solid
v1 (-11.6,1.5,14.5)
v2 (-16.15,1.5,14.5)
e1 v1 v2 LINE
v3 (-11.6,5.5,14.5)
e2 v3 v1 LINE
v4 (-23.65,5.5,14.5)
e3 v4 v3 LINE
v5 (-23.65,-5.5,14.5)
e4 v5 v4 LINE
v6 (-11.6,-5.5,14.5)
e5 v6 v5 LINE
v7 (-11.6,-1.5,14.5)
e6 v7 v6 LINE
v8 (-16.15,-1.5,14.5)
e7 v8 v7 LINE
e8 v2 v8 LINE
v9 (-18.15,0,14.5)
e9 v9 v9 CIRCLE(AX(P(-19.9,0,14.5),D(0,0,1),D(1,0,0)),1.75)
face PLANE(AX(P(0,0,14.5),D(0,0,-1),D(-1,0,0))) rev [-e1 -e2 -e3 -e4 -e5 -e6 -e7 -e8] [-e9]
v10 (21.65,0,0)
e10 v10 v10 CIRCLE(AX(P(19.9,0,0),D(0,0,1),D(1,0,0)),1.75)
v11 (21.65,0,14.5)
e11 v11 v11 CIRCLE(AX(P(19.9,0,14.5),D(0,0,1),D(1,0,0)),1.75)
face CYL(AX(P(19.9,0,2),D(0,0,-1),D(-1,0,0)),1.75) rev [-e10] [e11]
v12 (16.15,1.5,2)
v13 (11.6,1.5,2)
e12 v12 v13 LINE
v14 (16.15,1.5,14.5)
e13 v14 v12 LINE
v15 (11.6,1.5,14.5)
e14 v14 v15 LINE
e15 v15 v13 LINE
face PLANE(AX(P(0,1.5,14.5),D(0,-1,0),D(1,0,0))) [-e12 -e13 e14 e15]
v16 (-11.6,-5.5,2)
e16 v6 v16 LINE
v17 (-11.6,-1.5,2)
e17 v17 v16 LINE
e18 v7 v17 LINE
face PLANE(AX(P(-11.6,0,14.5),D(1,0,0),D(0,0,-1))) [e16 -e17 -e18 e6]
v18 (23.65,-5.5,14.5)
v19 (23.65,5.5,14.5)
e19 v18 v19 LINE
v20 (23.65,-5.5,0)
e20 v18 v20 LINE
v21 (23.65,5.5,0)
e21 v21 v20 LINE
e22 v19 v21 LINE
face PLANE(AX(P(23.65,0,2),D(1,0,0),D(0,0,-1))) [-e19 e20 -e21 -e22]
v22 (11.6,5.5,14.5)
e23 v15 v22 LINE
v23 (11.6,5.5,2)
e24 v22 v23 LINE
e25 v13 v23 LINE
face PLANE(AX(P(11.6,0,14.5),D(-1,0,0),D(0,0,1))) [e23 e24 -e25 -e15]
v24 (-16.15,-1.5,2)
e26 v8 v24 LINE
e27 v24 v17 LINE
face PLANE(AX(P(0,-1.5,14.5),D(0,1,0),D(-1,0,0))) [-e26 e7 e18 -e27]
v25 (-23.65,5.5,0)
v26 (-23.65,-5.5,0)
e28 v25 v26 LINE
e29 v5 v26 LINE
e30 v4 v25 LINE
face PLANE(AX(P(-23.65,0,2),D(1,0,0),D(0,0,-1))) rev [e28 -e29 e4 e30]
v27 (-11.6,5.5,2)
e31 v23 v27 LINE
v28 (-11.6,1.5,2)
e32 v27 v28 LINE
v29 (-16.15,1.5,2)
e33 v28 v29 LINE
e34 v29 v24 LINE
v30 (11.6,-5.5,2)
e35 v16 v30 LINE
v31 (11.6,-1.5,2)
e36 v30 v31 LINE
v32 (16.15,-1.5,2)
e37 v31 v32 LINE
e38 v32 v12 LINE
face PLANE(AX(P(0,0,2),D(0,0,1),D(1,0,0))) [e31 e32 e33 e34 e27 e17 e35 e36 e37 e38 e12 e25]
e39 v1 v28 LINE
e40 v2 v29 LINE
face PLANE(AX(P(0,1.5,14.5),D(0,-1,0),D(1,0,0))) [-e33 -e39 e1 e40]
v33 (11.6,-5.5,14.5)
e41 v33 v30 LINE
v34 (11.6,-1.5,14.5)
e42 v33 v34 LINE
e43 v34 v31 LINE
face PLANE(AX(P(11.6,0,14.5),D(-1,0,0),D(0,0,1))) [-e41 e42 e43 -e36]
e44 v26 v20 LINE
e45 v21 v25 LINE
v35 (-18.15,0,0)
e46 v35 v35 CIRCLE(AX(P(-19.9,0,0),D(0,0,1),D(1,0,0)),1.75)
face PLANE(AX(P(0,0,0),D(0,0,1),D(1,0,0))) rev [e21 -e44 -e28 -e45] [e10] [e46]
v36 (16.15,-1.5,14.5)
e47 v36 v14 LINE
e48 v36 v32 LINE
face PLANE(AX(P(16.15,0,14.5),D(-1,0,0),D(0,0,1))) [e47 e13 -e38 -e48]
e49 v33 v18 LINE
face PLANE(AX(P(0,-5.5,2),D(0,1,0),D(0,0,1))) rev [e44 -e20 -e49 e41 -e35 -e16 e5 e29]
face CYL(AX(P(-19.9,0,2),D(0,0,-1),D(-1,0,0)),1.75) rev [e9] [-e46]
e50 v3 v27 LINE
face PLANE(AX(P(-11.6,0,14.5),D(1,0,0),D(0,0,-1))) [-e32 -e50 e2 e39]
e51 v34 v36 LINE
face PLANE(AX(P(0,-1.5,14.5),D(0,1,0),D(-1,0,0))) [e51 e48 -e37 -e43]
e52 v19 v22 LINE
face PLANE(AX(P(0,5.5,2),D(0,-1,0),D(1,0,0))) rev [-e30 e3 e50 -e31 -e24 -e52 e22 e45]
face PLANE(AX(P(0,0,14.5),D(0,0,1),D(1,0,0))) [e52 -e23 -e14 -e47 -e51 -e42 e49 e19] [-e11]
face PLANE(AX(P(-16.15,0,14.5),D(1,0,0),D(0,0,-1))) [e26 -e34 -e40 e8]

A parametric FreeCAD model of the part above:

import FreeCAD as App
import Part
import Sketcher

V = App.Vector
Q = App.Units.Quantity

doc = App.newDocument("Part")
params = doc.addObject("Spreadsheet::Sheet", "Params")
for row, (alias, value) in enumerate([
    ("sketch1_diameter", "3.5 mm"),
    ("sketch1_height", "11 mm"),
    ("sketch1_width", "47.3 mm"),
    ("pad1_length", "2 mm"),
    ("sketch2_diameter", "3.5 mm"),
    ("sketch2_height", "11 mm"),
    ("sketch2_height2", "4 mm"),
    ("sketch2_width", "12.05 mm"),
    ("sketch2_width2", "4.55 mm"),
    ("pad2_length", "12.5 mm"),
], start=1):
    params.set(f"A{row}", alias)
    params.set(f"B{row}", "=" + value)
    params.setAlias(f"B{row}", alias)

body = doc.addObject("PartDesign::Body", "Body")

sketch1 = body.newObject("Sketcher::SketchObject", "Sketch")
sketch1.AttachmentSupport = (doc.getObject("XY_Plane"), [""])
sketch1.MapMode = "FlatFace"
sketch1.addGeometry([
    Part.LineSegment(V(-23.65, 5.5, 0), V(-23.65, -5.5, 0)),
    Part.LineSegment(V(-23.65, -5.5, 0), V(23.65, -5.5, 0)),
    Part.LineSegment(V(23.65, -5.5, 0), V(23.65, 5.5, 0)),
    Part.LineSegment(V(23.65, 5.5, 0), V(-23.65, 5.5, 0)),
    Part.Circle(V(-19.9, 0, 0), V(0, 0, 1), 1.75),
    Part.Circle(V(19.9, 0, 0), V(0, 0, 1), 1.75),
], False)
sketch1.addConstraint([
    Sketcher.Constraint("Coincident", 0, 2, 1, 1),
    Sketcher.Constraint("Coincident", 1, 2, 2, 1),
    Sketcher.Constraint("Coincident", 2, 2, 3, 1),
    Sketcher.Constraint("Coincident", 3, 2, 0, 1),
    Sketcher.Constraint("Vertical", 0),
    Sketcher.Constraint("Horizontal", 1),
    Sketcher.Constraint("Vertical", 2),
    Sketcher.Constraint("Horizontal", 3),
    Sketcher.Constraint("Equal", 4, 5),
    Sketcher.Constraint("Symmetric", 4, 3, 5, 3, -1, 1),
    Sketcher.Constraint("Symmetric", 0, 2, 2, 2, -1, 1),
    Sketcher.Constraint("PointOnObject", 4, 3, -1),
    Sketcher.Constraint("Diameter", 4, Q("3.5 mm")),
    Sketcher.Constraint("DistanceY", 0, 2, 0, 1, Q("11 mm")),
    Sketcher.Constraint("DistanceX", 1, 1, 1, 2, Q("47.3 mm")),
    Sketcher.Constraint("DistanceX", 4, 3, -1, 1, Q("19.9 mm")),
])
sketch1.setExpression("Constraints[12]", "Params.sketch1_diameter")
sketch1.setExpression("Constraints[13]", "Params.sketch1_height")
sketch1.setExpression("Constraints[14]", "Params.sketch1_width")
pad1 = body.newObject("PartDesign::Pad", "Pad")
pad1.Profile = sketch1
pad1.setExpression("Length", "Params.pad1_length")

sketch2 = body.newObject("Sketcher::SketchObject", "Sketch001")
sketch2.AttachmentSupport = (doc.getObject("XY_Plane"), [""])
sketch2.MapMode = "FlatFace"
sketch2.AttachmentOffset = App.Placement(V(0, 0, 2), App.Rotation())
sketch2.addGeometry([
    Part.LineSegment(V(-23.65, 5.5, 0), V(-23.65, -5.5, 0)),
    Part.LineSegment(V(-23.65, -5.5, 0), V(-11.6, -5.5, 0)),
    Part.LineSegment(V(-11.6, -5.5, 0), V(-11.6, -1.5, 0)),
    Part.LineSegment(V(-11.6, -1.5, 0), V(-16.15, -1.5, 0)),
    Part.LineSegment(V(-16.15, -1.5, 0), V(-16.15, 1.5, 0)),
    Part.LineSegment(V(-16.15, 1.5, 0), V(-11.6, 1.5, 0)),
    Part.LineSegment(V(-11.6, 1.5, 0), V(-11.6, 5.5, 0)),
    Part.LineSegment(V(-11.6, 5.5, 0), V(-23.65, 5.5, 0)),
    Part.Circle(V(-19.9, 0, 0), V(0, 0, 1), 1.75),
    Part.LineSegment(V(11.6, -5.5, 0), V(23.65, -5.5, 0)),
    Part.LineSegment(V(23.65, -5.5, 0), V(23.65, 5.5, 0)),
    Part.LineSegment(V(23.65, 5.5, 0), V(11.6, 5.5, 0)),
    Part.LineSegment(V(11.6, 5.5, 0), V(11.6, 1.5, 0)),
    Part.LineSegment(V(11.6, 1.5, 0), V(16.15, 1.5, 0)),
    Part.LineSegment(V(16.15, 1.5, 0), V(16.15, -1.5, 0)),
    Part.LineSegment(V(16.15, -1.5, 0), V(11.6, -1.5, 0)),
    Part.LineSegment(V(11.6, -1.5, 0), V(11.6, -5.5, 0)),
    Part.Circle(V(19.9, 0, 0), V(0, 0, 1), 1.75),
], False)
sketch2.addConstraint([
    Sketcher.Constraint("Coincident", 0, 2, 1, 1),
    Sketcher.Constraint("Coincident", 1, 2, 2, 1),
    Sketcher.Constraint("Coincident", 2, 2, 3, 1),
    Sketcher.Constraint("Coincident", 3, 2, 4, 1),
    Sketcher.Constraint("Coincident", 4, 2, 5, 1),
    Sketcher.Constraint("Coincident", 5, 2, 6, 1),
    Sketcher.Constraint("Coincident", 6, 2, 7, 1),
    Sketcher.Constraint("Coincident", 7, 2, 0, 1),
    Sketcher.Constraint("Coincident", 9, 2, 10, 1),
    Sketcher.Constraint("Coincident", 10, 2, 11, 1),
    Sketcher.Constraint("Coincident", 11, 2, 12, 1),
    Sketcher.Constraint("Coincident", 12, 2, 13, 1),
    Sketcher.Constraint("Coincident", 13, 2, 14, 1),
    Sketcher.Constraint("Coincident", 14, 2, 15, 1),
    Sketcher.Constraint("Coincident", 15, 2, 16, 1),
    Sketcher.Constraint("Coincident", 16, 2, 9, 1),
    Sketcher.Constraint("Vertical", 0),
    Sketcher.Constraint("Horizontal", 1),
    Sketcher.Constraint("Vertical", 2),
    Sketcher.Constraint("Horizontal", 3),
    Sketcher.Constraint("Vertical", 4),
    Sketcher.Constraint("Horizontal", 5),
    Sketcher.Constraint("Vertical", 6),
    Sketcher.Constraint("Horizontal", 7),
    Sketcher.Constraint("Horizontal", 9),
    Sketcher.Constraint("Vertical", 10),
    Sketcher.Constraint("Horizontal", 11),
    Sketcher.Constraint("Vertical", 12),
    Sketcher.Constraint("Horizontal", 13),
    Sketcher.Constraint("Vertical", 14),
    Sketcher.Constraint("Horizontal", 15),
    Sketcher.Constraint("Vertical", 16),
    Sketcher.Constraint("Equal", 8, 17),
    Sketcher.Constraint("Symmetric", 8, 3, 17, 3, -1, 1),
    Sketcher.Constraint("Symmetric", 7, 2, 9, 2, -1, 1),
    Sketcher.Constraint("Symmetric", 1, 2, 11, 2, -1, 1),
    Sketcher.Constraint("Symmetric", 3, 2, 13, 2, -1, 1),
    Sketcher.Constraint("Symmetric", 5, 2, 15, 2, -1, 1),
    Sketcher.Constraint("Symmetric", 6, 2, 11, 2, -2),
    Sketcher.Constraint("PointOnObject", 8, 3, -1),
    Sketcher.Constraint("Horizontal", 5, 2, 12, 2),
    Sketcher.Constraint("Diameter", 8, Q("3.5 mm")),
    Sketcher.Constraint("DistanceY", 0, 2, 0, 1, Q("11 mm")),
    Sketcher.Constraint("DistanceY", 2, 1, 2, 2, Q("4 mm")),
    Sketcher.Constraint("DistanceX", 1, 1, 1, 2, Q("12.05 mm")),
    Sketcher.Constraint("DistanceX", 3, 2, 3, 1, Q("4.55 mm")),
    Sketcher.Constraint("DistanceX", 8, 3, -1, 1, Q("19.9 mm")),
    Sketcher.Constraint("DistanceX", 1, 2, -1, 1, Q("11.6 mm")),
])
sketch2.setExpression("Constraints[41]", "Params.sketch2_diameter")
sketch2.setExpression("Constraints[42]", "Params.sketch2_height")
sketch2.setExpression("Constraints[43]", "Params.sketch2_height2")
sketch2.setExpression("Constraints[44]", "Params.sketch2_width")
sketch2.setExpression("Constraints[45]", "Params.sketch2_width2")
pad2 = body.newObject("PartDesign::Pad", "Pad001")
pad2.Profile = sketch2
pad2.setExpression("Length", "Params.pad2_length")

doc.recompute()
